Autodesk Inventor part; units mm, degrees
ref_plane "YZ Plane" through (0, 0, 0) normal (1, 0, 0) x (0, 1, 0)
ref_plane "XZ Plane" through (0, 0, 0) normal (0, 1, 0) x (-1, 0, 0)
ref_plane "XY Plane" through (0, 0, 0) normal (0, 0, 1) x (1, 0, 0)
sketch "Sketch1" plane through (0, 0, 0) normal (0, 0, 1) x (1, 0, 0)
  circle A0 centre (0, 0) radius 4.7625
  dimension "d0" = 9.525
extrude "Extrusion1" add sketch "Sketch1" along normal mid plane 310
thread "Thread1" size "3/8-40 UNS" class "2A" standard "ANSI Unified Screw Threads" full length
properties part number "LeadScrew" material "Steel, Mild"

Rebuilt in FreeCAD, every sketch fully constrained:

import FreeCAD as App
import Part
import Sketcher

doc = App.newDocument("Part")
params = doc.addObject("Spreadsheet::Sheet", "Params")
for row, (alias, value) in enumerate([
    ("pad1_length", "310 mm"),
], start=1):
    params.set(f"A{row}", alias)
    params.set(f"B{row}", "=" + value)
    params.setAlias(f"B{row}", alias)

body = doc.addObject("PartDesign::Body", "Body")

# Sketch on XY plane
sketch1 = body.newObject("Sketcher::SketchObject", "Sketch")
sketch1.AttachmentSupport = (doc.getObject("XY_Plane"), [""])
sketch1.MapMode = "FlatFace"
sketch1.addGeometry(Part.Circle(App.Vector(0, 0, 0), App.Vector(0, 0, 1), 4.8), False)
sketch1.addConstraint([
    Sketcher.Constraint("Coincident", 0, 3, -1, 1),
    Sketcher.Constraint("Diameter", 0, 9.525),
])
pad1 = body.newObject("PartDesign::Pad", "Pad")
pad1.Profile = sketch1
pad1.setExpression("Length", "Params.pad1_length")
pad1.Midplane = True

doc.recompute()
